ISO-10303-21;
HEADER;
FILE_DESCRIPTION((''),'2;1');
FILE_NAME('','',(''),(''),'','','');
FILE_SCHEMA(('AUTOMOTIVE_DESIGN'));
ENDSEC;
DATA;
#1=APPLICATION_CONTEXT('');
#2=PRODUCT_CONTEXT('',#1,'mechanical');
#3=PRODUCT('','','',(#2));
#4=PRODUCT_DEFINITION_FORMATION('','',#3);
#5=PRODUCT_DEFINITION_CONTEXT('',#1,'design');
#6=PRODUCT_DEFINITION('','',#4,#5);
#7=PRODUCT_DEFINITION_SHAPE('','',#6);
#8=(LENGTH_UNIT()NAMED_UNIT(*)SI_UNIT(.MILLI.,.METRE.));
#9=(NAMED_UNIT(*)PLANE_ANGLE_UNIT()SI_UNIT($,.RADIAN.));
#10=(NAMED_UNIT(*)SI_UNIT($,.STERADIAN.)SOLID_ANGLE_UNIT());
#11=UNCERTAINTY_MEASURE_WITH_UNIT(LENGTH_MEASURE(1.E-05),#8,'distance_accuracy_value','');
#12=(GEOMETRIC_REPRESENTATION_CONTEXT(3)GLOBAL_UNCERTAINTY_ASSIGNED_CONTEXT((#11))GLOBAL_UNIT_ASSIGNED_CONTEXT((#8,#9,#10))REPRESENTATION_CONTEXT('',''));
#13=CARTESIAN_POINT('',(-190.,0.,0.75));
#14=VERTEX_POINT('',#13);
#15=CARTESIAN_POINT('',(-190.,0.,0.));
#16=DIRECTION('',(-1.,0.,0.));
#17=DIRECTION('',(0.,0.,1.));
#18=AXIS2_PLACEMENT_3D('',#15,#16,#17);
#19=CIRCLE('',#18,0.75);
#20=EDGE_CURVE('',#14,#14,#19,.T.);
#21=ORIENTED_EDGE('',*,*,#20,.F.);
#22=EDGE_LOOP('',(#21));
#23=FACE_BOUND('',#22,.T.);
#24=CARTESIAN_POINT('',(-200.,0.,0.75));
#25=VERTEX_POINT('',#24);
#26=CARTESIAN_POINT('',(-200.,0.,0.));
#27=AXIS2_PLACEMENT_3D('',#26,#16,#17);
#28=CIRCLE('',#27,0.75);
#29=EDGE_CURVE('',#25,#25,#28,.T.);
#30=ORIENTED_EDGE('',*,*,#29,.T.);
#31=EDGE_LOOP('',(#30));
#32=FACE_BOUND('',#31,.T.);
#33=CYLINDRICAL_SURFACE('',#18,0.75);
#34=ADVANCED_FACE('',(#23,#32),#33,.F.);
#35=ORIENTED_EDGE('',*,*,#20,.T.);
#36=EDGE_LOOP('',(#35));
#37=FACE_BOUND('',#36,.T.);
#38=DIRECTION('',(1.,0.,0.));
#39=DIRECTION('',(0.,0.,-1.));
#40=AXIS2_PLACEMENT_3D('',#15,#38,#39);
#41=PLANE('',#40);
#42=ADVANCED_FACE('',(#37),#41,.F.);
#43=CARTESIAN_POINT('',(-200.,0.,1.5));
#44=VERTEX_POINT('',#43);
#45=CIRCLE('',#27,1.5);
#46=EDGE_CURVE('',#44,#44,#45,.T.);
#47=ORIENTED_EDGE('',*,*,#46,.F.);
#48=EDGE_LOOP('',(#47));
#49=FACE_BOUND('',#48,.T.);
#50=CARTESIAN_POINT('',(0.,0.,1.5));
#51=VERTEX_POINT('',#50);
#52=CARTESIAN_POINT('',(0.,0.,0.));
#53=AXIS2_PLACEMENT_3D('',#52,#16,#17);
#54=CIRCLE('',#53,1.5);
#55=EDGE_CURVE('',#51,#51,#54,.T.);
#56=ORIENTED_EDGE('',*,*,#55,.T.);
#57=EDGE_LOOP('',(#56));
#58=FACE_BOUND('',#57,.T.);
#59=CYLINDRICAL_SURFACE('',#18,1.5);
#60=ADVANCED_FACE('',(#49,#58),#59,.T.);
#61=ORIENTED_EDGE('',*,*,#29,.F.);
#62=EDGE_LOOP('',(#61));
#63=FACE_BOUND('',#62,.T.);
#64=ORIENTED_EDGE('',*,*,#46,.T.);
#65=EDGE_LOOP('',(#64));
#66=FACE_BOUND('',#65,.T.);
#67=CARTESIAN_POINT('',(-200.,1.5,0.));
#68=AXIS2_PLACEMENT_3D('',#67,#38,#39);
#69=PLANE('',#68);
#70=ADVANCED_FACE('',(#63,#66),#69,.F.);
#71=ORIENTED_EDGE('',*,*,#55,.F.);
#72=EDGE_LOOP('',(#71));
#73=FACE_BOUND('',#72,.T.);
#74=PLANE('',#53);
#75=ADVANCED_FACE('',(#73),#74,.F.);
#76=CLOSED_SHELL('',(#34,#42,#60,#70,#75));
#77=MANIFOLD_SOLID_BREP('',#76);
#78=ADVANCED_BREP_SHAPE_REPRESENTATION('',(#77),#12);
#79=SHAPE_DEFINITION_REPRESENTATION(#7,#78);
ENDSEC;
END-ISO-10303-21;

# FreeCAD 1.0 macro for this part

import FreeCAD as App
import Part
import Sketcher
from FreeCAD import Vector


def add_polygon(sketch, points):
    """Adds a closed chain of lines whose ends are joined by coincident constraints."""
    first, n = sketch.GeometryCount, len(points)
    for a, b in zip(points, points[1:] + points[:1]):
        sketch.addGeometry(Part.LineSegment(App.Vector(*a, 0), App.Vector(*b, 0)), False)
    for i in range(n):
        sketch.addConstraint(Sketcher.Constraint("Coincident", first + i, 2, first + (i + 1) % n, 1))

doc = App.newDocument("Part")
body = doc.addObject("PartDesign::Body", "Body")

# Sketch on XY plane
sketch1 = body.newObject("Sketcher::SketchObject", "Sketch")
sketch1.AttachmentSupport = (doc.getObject("XY_Plane"), [""])
sketch1.MapMode = "FlatFace"
add_polygon(sketch1, [(0, 0), (0, 1.5), (-200, 1.5), (-200, 0.75), (-190, 0.75), (-190, 0)])  # lines 0-5
sketch1.addConstraint([
    Sketcher.Constraint("Vertical", 0),
    Sketcher.Constraint("Horizontal", 1),
    Sketcher.Constraint("Vertical", 2),
    Sketcher.Constraint("Horizontal", 3),
    Sketcher.Constraint("Vertical", 4),
    Sketcher.Constraint("Horizontal", 5),
    Sketcher.Constraint("Coincident", 5, 2, -1, 1),
    Sketcher.Constraint("Equal", 2, 4),
    Sketcher.Constraint("DistanceX", 1, 2, 1, 1, 200.0),
    Sketcher.Constraint("DistanceX", 3, 1, 3, 2, 10.0),
    Sketcher.Constraint("DistanceY", 0, 1, 0, 2, 1.5),
])
revolution = body.newObject("PartDesign::Revolution", "Revolution")
revolution.Profile = sketch1
revolution.ReferenceAxis = (sketch1, ["H_Axis"])
revolution.Angle = 360

doc.recompute()
